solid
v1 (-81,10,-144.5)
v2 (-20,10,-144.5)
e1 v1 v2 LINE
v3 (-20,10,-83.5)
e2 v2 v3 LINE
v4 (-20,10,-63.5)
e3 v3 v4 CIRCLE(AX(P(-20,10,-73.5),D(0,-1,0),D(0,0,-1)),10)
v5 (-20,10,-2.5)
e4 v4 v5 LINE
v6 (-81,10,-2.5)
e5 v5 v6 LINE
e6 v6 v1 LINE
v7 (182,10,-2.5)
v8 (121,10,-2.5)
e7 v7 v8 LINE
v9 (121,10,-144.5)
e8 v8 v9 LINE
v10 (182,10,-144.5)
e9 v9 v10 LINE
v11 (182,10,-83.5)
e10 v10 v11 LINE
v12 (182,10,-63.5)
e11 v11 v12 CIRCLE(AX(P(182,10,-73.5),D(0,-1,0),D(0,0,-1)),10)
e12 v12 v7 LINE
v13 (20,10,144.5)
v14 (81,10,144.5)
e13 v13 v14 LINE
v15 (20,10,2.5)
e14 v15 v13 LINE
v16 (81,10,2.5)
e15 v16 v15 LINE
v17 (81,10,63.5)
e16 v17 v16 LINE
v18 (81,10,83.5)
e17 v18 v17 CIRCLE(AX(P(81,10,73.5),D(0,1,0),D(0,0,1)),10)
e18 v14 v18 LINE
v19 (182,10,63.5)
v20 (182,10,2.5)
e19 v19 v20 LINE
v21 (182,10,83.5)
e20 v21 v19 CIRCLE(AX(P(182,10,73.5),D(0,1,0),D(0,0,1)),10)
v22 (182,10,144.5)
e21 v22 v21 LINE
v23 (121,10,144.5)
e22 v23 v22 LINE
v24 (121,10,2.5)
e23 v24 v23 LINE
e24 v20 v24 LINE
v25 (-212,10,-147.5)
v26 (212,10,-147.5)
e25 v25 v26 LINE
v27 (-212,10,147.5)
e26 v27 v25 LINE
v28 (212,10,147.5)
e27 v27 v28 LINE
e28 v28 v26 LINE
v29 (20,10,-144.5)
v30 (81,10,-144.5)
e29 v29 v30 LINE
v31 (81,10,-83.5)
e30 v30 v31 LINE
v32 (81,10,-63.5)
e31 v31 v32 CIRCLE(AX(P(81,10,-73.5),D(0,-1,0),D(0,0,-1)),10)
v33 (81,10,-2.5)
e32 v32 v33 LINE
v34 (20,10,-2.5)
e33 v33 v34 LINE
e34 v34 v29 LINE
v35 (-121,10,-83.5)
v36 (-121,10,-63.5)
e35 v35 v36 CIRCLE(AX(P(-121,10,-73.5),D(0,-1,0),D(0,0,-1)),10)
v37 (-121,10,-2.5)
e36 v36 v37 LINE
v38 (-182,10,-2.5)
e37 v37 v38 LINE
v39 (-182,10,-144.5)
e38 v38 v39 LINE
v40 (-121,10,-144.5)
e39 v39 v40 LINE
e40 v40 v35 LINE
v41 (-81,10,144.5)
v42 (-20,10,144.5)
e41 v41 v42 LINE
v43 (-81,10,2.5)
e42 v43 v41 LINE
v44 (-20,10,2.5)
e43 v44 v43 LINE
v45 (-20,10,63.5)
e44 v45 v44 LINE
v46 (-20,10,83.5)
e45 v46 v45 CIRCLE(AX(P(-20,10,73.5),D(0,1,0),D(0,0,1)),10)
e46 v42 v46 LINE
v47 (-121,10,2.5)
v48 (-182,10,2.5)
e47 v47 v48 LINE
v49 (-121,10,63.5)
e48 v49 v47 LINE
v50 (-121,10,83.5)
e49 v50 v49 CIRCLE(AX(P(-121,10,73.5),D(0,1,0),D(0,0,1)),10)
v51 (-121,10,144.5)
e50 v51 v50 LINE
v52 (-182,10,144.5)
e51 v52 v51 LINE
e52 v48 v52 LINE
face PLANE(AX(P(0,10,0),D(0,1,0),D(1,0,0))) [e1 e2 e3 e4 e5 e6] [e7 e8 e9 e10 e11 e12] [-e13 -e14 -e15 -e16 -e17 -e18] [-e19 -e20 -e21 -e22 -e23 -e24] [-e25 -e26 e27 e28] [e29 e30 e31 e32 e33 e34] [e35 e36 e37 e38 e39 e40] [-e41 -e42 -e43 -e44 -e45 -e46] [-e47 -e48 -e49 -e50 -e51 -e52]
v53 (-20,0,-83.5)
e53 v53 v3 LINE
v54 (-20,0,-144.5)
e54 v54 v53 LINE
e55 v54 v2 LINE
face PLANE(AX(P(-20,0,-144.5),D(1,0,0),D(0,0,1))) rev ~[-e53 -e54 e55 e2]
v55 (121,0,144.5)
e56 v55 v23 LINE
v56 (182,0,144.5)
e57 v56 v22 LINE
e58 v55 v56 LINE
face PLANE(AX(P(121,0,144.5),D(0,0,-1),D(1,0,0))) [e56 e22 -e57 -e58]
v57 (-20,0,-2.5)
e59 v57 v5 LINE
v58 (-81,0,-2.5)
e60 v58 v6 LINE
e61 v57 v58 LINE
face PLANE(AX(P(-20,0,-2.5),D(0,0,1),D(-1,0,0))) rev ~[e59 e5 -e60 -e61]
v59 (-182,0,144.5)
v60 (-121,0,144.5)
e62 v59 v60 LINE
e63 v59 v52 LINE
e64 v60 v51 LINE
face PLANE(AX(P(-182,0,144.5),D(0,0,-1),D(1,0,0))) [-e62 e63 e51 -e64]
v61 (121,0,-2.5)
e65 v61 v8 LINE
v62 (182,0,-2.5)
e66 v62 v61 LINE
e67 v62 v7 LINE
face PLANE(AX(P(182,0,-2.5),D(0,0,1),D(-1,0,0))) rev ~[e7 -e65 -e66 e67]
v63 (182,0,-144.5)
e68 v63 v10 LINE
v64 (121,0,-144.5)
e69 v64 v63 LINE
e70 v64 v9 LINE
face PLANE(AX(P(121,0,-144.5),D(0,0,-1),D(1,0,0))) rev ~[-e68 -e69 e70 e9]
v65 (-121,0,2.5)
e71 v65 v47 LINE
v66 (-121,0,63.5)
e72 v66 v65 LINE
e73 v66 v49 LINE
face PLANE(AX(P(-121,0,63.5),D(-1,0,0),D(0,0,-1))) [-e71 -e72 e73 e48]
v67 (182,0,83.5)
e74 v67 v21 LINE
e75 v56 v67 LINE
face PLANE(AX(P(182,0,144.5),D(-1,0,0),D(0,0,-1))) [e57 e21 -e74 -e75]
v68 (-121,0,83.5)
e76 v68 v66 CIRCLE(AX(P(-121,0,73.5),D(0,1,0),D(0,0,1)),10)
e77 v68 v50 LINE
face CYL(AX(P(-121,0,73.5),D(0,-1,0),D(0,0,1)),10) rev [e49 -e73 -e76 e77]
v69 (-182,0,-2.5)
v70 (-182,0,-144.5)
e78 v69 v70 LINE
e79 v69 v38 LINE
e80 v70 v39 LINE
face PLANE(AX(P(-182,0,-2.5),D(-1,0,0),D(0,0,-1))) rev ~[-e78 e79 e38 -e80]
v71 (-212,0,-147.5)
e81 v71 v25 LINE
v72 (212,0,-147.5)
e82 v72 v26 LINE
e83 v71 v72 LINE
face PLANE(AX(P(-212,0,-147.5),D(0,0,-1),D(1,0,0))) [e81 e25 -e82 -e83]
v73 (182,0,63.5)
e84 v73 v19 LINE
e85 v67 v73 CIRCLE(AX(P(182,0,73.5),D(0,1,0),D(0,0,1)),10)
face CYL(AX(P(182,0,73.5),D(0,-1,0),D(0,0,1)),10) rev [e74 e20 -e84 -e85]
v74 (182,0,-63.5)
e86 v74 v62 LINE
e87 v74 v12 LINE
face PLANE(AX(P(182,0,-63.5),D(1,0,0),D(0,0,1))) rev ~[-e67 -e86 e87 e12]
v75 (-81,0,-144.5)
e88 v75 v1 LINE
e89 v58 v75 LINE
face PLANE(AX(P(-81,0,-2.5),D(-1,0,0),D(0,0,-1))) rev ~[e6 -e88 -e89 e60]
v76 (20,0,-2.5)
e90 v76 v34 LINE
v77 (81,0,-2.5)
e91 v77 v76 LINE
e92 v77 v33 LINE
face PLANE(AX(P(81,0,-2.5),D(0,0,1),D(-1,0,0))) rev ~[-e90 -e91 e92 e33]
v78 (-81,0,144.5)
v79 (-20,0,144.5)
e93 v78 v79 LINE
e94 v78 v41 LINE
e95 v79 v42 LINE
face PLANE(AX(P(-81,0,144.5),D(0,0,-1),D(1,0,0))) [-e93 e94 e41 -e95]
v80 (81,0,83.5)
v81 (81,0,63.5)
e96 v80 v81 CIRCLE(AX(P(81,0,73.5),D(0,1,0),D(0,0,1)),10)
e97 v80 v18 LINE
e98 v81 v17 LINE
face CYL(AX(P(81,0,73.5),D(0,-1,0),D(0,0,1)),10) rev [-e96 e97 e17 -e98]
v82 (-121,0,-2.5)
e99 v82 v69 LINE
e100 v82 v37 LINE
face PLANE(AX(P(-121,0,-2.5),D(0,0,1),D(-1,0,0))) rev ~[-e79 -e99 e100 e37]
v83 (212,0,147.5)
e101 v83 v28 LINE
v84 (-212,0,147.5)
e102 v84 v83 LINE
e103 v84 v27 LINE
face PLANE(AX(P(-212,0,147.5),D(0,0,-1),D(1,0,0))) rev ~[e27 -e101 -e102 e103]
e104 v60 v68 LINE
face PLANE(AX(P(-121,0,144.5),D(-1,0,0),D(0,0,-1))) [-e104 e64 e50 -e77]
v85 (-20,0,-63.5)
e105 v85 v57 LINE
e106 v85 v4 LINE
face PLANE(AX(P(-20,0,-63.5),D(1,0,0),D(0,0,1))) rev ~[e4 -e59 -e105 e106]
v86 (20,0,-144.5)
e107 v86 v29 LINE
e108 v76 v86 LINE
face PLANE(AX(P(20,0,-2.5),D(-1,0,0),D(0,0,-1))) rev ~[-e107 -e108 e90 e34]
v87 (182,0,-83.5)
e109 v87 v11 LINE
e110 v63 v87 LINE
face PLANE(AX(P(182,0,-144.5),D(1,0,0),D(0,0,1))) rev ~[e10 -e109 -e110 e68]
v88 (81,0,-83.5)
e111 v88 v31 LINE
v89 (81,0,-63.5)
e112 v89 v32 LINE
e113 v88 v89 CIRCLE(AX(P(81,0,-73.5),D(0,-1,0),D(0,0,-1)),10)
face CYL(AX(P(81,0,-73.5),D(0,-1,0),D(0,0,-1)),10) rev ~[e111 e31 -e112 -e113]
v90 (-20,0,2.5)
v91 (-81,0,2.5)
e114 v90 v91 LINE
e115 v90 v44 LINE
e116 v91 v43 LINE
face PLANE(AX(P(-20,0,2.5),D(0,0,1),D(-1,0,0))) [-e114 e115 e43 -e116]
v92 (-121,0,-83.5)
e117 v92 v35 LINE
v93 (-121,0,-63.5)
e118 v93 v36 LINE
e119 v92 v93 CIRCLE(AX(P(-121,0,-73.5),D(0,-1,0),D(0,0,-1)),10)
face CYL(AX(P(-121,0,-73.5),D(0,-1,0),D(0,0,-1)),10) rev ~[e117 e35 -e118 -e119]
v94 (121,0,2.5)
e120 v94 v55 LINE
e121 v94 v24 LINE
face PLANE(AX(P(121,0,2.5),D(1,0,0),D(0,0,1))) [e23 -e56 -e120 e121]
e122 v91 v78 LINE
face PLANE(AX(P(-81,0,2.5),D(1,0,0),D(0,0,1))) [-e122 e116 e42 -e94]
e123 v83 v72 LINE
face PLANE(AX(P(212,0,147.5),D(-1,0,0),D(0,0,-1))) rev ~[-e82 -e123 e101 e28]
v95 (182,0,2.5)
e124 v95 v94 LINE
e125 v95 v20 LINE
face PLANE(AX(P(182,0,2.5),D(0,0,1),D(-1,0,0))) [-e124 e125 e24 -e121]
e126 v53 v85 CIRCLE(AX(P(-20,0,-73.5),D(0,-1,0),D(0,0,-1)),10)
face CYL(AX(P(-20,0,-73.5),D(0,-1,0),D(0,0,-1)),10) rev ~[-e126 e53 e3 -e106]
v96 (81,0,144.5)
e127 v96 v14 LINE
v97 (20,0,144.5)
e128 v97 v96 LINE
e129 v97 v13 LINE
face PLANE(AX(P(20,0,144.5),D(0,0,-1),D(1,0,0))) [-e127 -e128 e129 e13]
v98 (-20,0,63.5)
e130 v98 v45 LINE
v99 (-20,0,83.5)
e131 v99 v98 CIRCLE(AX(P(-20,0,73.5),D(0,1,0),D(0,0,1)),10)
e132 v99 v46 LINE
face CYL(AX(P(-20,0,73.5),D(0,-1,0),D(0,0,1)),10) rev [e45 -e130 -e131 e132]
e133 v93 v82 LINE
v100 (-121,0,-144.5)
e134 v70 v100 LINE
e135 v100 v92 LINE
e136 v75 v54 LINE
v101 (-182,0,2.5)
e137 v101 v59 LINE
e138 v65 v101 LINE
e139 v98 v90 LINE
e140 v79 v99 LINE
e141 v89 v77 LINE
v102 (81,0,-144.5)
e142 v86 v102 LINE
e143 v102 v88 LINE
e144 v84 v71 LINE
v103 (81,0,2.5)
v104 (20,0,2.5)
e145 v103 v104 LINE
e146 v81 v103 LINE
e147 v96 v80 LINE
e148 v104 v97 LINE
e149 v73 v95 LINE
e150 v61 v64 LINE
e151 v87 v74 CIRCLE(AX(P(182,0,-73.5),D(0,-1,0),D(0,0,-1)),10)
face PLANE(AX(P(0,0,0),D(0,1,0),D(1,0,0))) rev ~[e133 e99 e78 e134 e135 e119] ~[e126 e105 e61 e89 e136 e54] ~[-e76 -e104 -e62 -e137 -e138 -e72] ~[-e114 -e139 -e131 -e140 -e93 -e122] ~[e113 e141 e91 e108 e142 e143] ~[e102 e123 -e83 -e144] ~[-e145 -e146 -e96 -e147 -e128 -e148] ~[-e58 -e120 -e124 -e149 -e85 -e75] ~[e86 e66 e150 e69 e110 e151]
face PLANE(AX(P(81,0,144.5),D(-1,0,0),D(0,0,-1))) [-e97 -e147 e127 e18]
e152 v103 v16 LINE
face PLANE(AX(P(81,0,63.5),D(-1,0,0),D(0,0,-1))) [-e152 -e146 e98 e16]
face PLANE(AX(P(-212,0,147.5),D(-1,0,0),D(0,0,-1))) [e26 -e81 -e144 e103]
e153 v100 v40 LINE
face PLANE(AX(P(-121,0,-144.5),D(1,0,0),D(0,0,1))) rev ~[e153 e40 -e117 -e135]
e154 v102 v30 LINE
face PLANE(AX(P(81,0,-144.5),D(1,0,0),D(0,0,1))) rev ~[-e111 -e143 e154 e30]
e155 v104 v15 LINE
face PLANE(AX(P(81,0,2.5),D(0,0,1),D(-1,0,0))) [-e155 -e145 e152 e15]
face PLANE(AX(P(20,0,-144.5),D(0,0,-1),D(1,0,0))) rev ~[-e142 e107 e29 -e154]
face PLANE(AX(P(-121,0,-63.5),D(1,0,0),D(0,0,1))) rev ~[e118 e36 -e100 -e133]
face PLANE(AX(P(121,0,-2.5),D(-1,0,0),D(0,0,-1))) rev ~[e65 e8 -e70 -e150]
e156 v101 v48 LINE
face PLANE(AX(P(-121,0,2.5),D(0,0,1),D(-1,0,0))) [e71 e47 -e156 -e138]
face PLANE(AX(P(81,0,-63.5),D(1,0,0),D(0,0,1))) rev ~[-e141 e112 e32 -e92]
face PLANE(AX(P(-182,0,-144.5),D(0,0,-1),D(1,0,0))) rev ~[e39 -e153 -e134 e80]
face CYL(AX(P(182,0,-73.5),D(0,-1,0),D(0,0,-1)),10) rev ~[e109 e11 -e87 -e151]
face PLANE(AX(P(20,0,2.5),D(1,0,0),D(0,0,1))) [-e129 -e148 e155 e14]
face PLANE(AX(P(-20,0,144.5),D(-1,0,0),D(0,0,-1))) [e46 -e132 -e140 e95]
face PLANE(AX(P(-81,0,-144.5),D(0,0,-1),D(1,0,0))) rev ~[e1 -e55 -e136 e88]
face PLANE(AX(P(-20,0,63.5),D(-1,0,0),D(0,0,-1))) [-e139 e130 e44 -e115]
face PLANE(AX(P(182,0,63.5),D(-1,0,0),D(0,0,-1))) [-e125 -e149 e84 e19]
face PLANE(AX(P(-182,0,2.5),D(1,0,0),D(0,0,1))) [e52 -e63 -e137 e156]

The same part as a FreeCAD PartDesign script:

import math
import FreeCAD as App
import Part
import Sketcher

doc = App.newDocument("Part")
body = doc.addObject("PartDesign::Body", "Body")

# Sketch on XZ plane
sketch1 = body.newObject("Sketcher::SketchObject", "Sketch")
sketch1.AttachmentSupport = (doc.getObject("XZ_Plane"), [""])
sketch1.MapMode = "FlatFace"
sketch1.addGeometry([
    Part.LineSegment(App.Vector(-212, -147.5, 0), App.Vector(-212, 147.5, 0)),  # 0
    Part.LineSegment(App.Vector(-212, 147.5, 0), App.Vector(212, 147.5, 0)),  # 1
    Part.LineSegment(App.Vector(212, 147.5, 0), App.Vector(212, -147.5, 0)),  # 2
    Part.LineSegment(App.Vector(212, -147.5, 0), App.Vector(-212, -147.5, 0)),  # 3
    Part.LineSegment(App.Vector(-121, 83.5, 0), App.Vector(-121, 144.5, 0)),  # 4
    Part.LineSegment(App.Vector(-121, 144.5, 0), App.Vector(-182, 144.5, 0)),  # 5
    Part.LineSegment(App.Vector(-182, 144.5, 0), App.Vector(-182, 2.5, 0)),  # 6
    Part.LineSegment(App.Vector(-182, 2.5, 0), App.Vector(-121, 2.5, 0)),  # 7
    Part.LineSegment(App.Vector(-121, 2.5, 0), App.Vector(-121, 63.5, 0)),  # 8
    Part.ArcOfCircle(Part.Circle(App.Vector(-121, 73.5, 0), App.Vector(0, 0, 1), 10), math.radians(-90), math.radians(90)),  # 9
    Part.LineSegment(App.Vector(-20, 2.5, 0), App.Vector(-20, 63.5, 0)),  # 10
    Part.ArcOfCircle(Part.Circle(App.Vector(-20, 73.5, 0), App.Vector(0, 0, 1), 10), math.radians(-90), math.radians(90)),  # 11
    Part.LineSegment(App.Vector(-20, 83.5, 0), App.Vector(-20, 144.5, 0)),  # 12
    Part.LineSegment(App.Vector(-20, 144.5, 0), App.Vector(-81, 144.5, 0)),  # 13
    Part.LineSegment(App.Vector(-81, 144.5, 0), App.Vector(-81, 2.5, 0)),  # 14
    Part.LineSegment(App.Vector(-81, 2.5, 0), App.Vector(-20, 2.5, 0)),  # 15
    Part.LineSegment(App.Vector(81, 2.5, 0), App.Vector(81, 63.5, 0)),  # 16
    Part.ArcOfCircle(Part.Circle(App.Vector(81, 73.5, 0), App.Vector(0, 0, 1), 10), math.radians(-90), math.radians(90)),  # 17
    Part.LineSegment(App.Vector(81, 83.5, 0), App.Vector(81, 144.5, 0)),  # 18
    Part.LineSegment(App.Vector(81, 144.5, 0), App.Vector(20, 144.5, 0)),  # 19
    Part.LineSegment(App.Vector(20, 144.5, 0), App.Vector(20, 2.5, 0)),  # 20
    Part.LineSegment(App.Vector(20, 2.5, 0), App.Vector(81, 2.5, 0)),  # 21
    Part.LineSegment(App.Vector(182, 2.5, 0), App.Vector(182, 63.5, 0)),  # 22
    Part.ArcOfCircle(Part.Circle(App.Vector(182, 73.5, 0), App.Vector(0, 0, 1), 10), math.radians(-90), math.radians(90)),  # 23
    Part.LineSegment(App.Vector(182, 83.5, 0), App.Vector(182, 144.5, 0)),  # 24
    Part.LineSegment(App.Vector(182, 144.5, 0), App.Vector(121, 144.5, 0)),  # 25
    Part.LineSegment(App.Vector(121, 144.5, 0), App.Vector(121, 2.5, 0)),  # 26
    Part.LineSegment(App.Vector(121, 2.5, 0), App.Vector(182, 2.5, 0)),  # 27
    Part.LineSegment(App.Vector(-182, -2.5, 0), App.Vector(-182, -144.5, 0)),  # 28
    Part.LineSegment(App.Vector(-182, -144.5, 0), App.Vector(-121, -144.5, 0)),  # 29
    Part.LineSegment(App.Vector(-121, -144.5, 0), App.Vector(-121, -83.5, 0)),  # 30
    Part.ArcOfCircle(Part.Circle(App.Vector(-121, -73.5, 0), App.Vector(0, 0, 1), 10), math.radians(-90), math.radians(90)),  # 31
    Part.LineSegment(App.Vector(-121, -63.5, 0), App.Vector(-121, -2.5, 0)),  # 32
    Part.LineSegment(App.Vector(-121, -2.5, 0), App.Vector(-182, -2.5, 0)),  # 33
    Part.ArcOfCircle(Part.Circle(App.Vector(-20, -73.5, 0), App.Vector(0, 0, 1), 10), math.radians(-90), math.radians(90)),  # 34
    Part.LineSegment(App.Vector(-20, -63.5, 0), App.Vector(-20, -2.5, 0)),  # 35
    Part.LineSegment(App.Vector(-20, -2.5, 0), App.Vector(-81, -2.5, 0)),  # 36
    Part.LineSegment(App.Vector(-81, -2.5, 0), App.Vector(-81, -144.5, 0)),  # 37
    Part.LineSegment(App.Vector(-81, -144.5, 0), App.Vector(-20, -144.5, 0)),  # 38
    Part.LineSegment(App.Vector(-20, -144.5, 0), App.Vector(-20, -83.5, 0)),  # 39
    Part.ArcOfCircle(Part.Circle(App.Vector(81, -73.5, 0), App.Vector(0, 0, 1), 10), math.radians(-90), math.radians(90)),  # 40
    Part.LineSegment(App.Vector(81, -63.5, 0), App.Vector(81, -2.5, 0)),  # 41
    Part.LineSegment(App.Vector(81, -2.5, 0), App.Vector(20, -2.5, 0)),  # 42
    Part.LineSegment(App.Vector(20, -2.5, 0), App.Vector(20, -144.5, 0)),  # 43
    Part.LineSegment(App.Vector(20, -144.5, 0), App.Vector(81, -144.5, 0)),  # 44
    Part.LineSegment(App.Vector(81, -144.5, 0), App.Vector(81, -83.5, 0)),  # 45
    Part.ArcOfCircle(Part.Circle(App.Vector(182, -73.5, 0), App.Vector(0, 0, 1), 10), math.radians(-90), math.radians(90)),  # 46
    Part.LineSegment(App.Vector(182, -63.5, 0), App.Vector(182, -2.5, 0)),  # 47
    Part.LineSegment(App.Vector(182, -2.5, 0), App.Vector(121, -2.5, 0)),  # 48
    Part.LineSegment(App.Vector(121, -2.5, 0), App.Vector(121, -144.5, 0)),  # 49
    Part.LineSegment(App.Vector(121, -144.5, 0), App.Vector(182, -144.5, 0)),  # 50
    Part.LineSegment(App.Vector(182, -144.5, 0), App.Vector(182, -83.5, 0)),  # 51
], False)
sketch1.addConstraint([
    Sketcher.Constraint("Coincident", 0, 2, 1, 1),
    Sketcher.Constraint("Coincident", 1, 2, 2, 1),
    Sketcher.Constraint("Coincident", 2, 2, 3, 1),
    Sketcher.Constraint("Coincident", 3, 2, 0, 1),
    Sketcher.Constraint("Coincident", 4, 2, 5, 1),
    Sketcher.Constraint("Coincident", 5, 2, 6, 1),
    Sketcher.Constraint("Coincident", 6, 2, 7, 1),
    Sketcher.Constraint("Coincident", 7, 2, 8, 1),
    Sketcher.Constraint("Coincident", 8, 2, 9, 1),
    Sketcher.Constraint("Coincident", 9, 2, 4, 1),
    Sketcher.Constraint("Coincident", 10, 2, 11, 1),
    Sketcher.Constraint("Coincident", 11, 2, 12, 1),
    Sketcher.Constraint("Coincident", 12, 2, 13, 1),
    Sketcher.Constraint("Coincident", 13, 2, 14, 1),
    Sketcher.Constraint("Coincident", 14, 2, 15, 1),
    Sketcher.Constraint("Coincident", 15, 2, 10, 1),
    Sketcher.Constraint("Coincident", 16, 2, 17, 1),
    Sketcher.Constraint("Coincident", 17, 2, 18, 1),
    Sketcher.Constraint("Coincident", 18, 2, 19, 1),
    Sketcher.Constraint("Coincident", 19, 2, 20, 1),
    Sketcher.Constraint("Coincident", 20, 2, 21, 1),
    Sketcher.Constraint("Coincident", 21, 2, 16, 1),
    Sketcher.Constraint("Coincident", 22, 2, 23, 1),
    Sketcher.Constraint("Coincident", 23, 2, 24, 1),
    Sketcher.Constraint("Coincident", 24, 2, 25, 1),
    Sketcher.Constraint("Coincident", 25, 2, 26, 1),
    Sketcher.Constraint("Coincident", 26, 2, 27, 1),
    Sketcher.Constraint("Coincident", 27, 2, 22, 1),
    Sketcher.Constraint("Coincident", 28, 2, 29, 1),
    Sketcher.Constraint("Coincident", 29, 2, 30, 1),
    Sketcher.Constraint("Coincident", 30, 2, 31, 1),
    Sketcher.Constraint("Coincident", 31, 2, 32, 1),
    Sketcher.Constraint("Coincident", 32, 2, 33, 1),
    Sketcher.Constraint("Coincident", 33, 2, 28, 1),
    Sketcher.Constraint("Coincident", 34, 2, 35, 1),
    Sketcher.Constraint("Coincident", 35, 2, 36, 1),
    Sketcher.Constraint("Coincident", 36, 2, 37, 1),
    Sketcher.Constraint("Coincident", 37, 2, 38, 1),
    Sketcher.Constraint("Coincident", 38, 2, 39, 1),
    Sketcher.Constraint("Coincident", 39, 2, 34, 1),
    Sketcher.Constraint("Coincident", 40, 2, 41, 1),
    Sketcher.Constraint("Coincident", 41, 2, 42, 1),
    Sketcher.Constraint("Coincident", 42, 2, 43, 1),
    Sketcher.Constraint("Coincident", 43, 2, 44, 1),
    Sketcher.Constraint("Coincident", 44, 2, 45, 1),
    Sketcher.Constraint("Coincident", 45, 2, 40, 1),
    Sketcher.Constraint("Coincident", 46, 2, 47, 1),
    Sketcher.Constraint("Coincident", 47, 2, 48, 1),
    Sketcher.Constraint("Coincident", 48, 2, 49, 1),
    Sketcher.Constraint("Coincident", 49, 2, 50, 1),
    Sketcher.Constraint("Coincident", 50, 2, 51, 1),
    Sketcher.Constraint("Coincident", 51, 2, 46, 1),
    Sketcher.Constraint("Vertical", 0),
    Sketcher.Constraint("Horizontal", 1),
    Sketcher.Constraint("Vertical", 2),
    Sketcher.Constraint("Horizontal", 3),
    Sketcher.Constraint("Vertical", 4),
    Sketcher.Constraint("Horizontal", 5),
    Sketcher.Constraint("Vertical", 6),
    Sketcher.Constraint("Horizontal", 7),
    Sketcher.Constraint("Vertical", 8),
    Sketcher.Constraint("Vertical", 10),
    Sketcher.Constraint("Vertical", 12),
    Sketcher.Constraint("Horizontal", 13),
    Sketcher.Constraint("Vertical", 14),
    Sketcher.Constraint("Horizontal", 15),
    Sketcher.Constraint("Vertical", 16),
    Sketcher.Constraint("Vertical", 18),
    Sketcher.Constraint("Horizontal", 19),
    Sketcher.Constraint("Vertical", 20),
    Sketcher.Constraint("Horizontal", 21),
    Sketcher.Constraint("Vertical", 22),
    Sketcher.Constraint("Vertical", 24),
    Sketcher.Constraint("Horizontal", 25),
    Sketcher.Constraint("Vertical", 26),
    Sketcher.Constraint("Horizontal", 27),
    Sketcher.Constraint("Vertical", 28),
    Sketcher.Constraint("Horizontal", 29),
    Sketcher.Constraint("Vertical", 30),
    Sketcher.Constraint("Vertical", 32),
    Sketcher.Constraint("Horizontal", 33),
    Sketcher.Constraint("Vertical", 35),
    Sketcher.Constraint("Horizontal", 36),
    Sketcher.Constraint("Vertical", 37),
    Sketcher.Constraint("Horizontal", 38),
    Sketcher.Constraint("Vertical", 39),
    Sketcher.Constraint("Vertical", 41),
    Sketcher.Constraint("Horizontal", 42),
    Sketcher.Constraint("Vertical", 43),
    Sketcher.Constraint("Horizontal", 44),
    Sketcher.Constraint("Vertical", 45),
    Sketcher.Constraint("Vertical", 47),
    Sketcher.Constraint("Horizontal", 48),
    Sketcher.Constraint("Vertical", 49),
    Sketcher.Constraint("Horizontal", 50),
    Sketcher.Constraint("Vertical", 51),
    Sketcher.Constraint("Equal", 9, 11),
    Sketcher.Constraint("Equal", 11, 17),
    Sketcher.Constraint("Equal", 17, 23),
    Sketcher.Constraint("Equal", 23, 31),
    Sketcher.Constraint("Equal", 31, 34),
    Sketcher.Constraint("Equal", 34, 40),
    Sketcher.Constraint("Equal", 40, 46),
    Sketcher.Constraint("Symmetric", 0, 2, 2, 2, -1, 1),
    Sketcher.Constraint("Symmetric", 24, 2, 28, 2, -1, 1),
    Sketcher.Constraint("Symmetric", 26, 2, 32, 2, -1, 1),
    Sketcher.Constraint("Symmetric", 20, 2, 35, 2, -1, 1),
    Sketcher.Constraint("Symmetric", 18, 2, 37, 2, -1, 1),
    Sketcher.Constraint("Symmetric", 14, 2, 41, 2, -1, 1),
    Sketcher.Constraint("Symmetric", 12, 2, 43, 2, -1, 1),
    Sketcher.Constraint("Symmetric", 6, 2, 47, 2, -1, 1),
    Sketcher.Constraint("Symmetric", 4, 2, 49, 2, -1, 1),
    Sketcher.Constraint("Symmetric", 13, 2, 18, 2, -2),
    Sketcher.Constraint("Symmetric", 15, 2, 20, 2, -2),
    Sketcher.Constraint("Symmetric", 5, 2, 24, 2, -2),
    Sketcher.Constraint("Symmetric", 7, 2, 26, 2, -2),
    Sketcher.Constraint("Symmetric", 9, 3, 31, 3, -1),
    Sketcher.Constraint("Symmetric", 11, 3, 34, 3, -1),
    Sketcher.Constraint("Symmetric", 17, 3, 40, 3, -1),
    Sketcher.Constraint("Symmetric", 23, 3, 46, 3, -1),
    Sketcher.Constraint("Horizontal", 9, 3, 11, 3),
    Sketcher.Constraint("Horizontal", 11, 3, 17, 3),
    Sketcher.Constraint("Horizontal", 17, 3, 23, 3),
    Sketcher.Constraint("Horizontal", 5, 2, 12, 2),
    Sketcher.Constraint("Horizontal", 7, 2, 14, 2),
    Sketcher.Constraint("Vertical", 31, 3, 4, 2),
    Sketcher.Constraint("Vertical", 4, 2, 7, 2),
    Sketcher.Constraint("Vertical", 34, 3, 10, 2),
    Sketcher.Constraint("Vertical", 10, 2, 11, 2),
    Sketcher.Constraint("Vertical", 40, 3, 16, 2),
    Sketcher.Constraint("Vertical", 16, 2, 17, 2),
    Sketcher.Constraint("Vertical", 46, 3, 22, 2),
    Sketcher.Constraint("Vertical", 22, 2, 23, 2),
    Sketcher.Constraint("Vertical", 9, 2, 29, 2),
    Sketcher.Constraint("Vertical", 35, 2, 38, 2),
    Sketcher.Constraint("Vertical", 41, 2, 44, 2),
    Sketcher.Constraint("Vertical", 47, 2, 50, 2),
    Sketcher.Constraint("Equal", 7, 13),
    Sketcher.Constraint("Equal", 50, 4),
    Sketcher.Constraint("Equal", 4, 8),
    Sketcher.Constraint("Radius", 9, 10.0),
    Sketcher.Constraint("DistanceX", 1, 1, 1, 2, 424.0),
    Sketcher.Constraint("DistanceX", 5, 2, 5, 1, 61.0),
    Sketcher.Constraint("DistanceY", 0, 1, 0, 2, 295.0),
    Sketcher.Constraint("DistanceX", 9, 3, -1, 1, 121.0),
    Sketcher.Constraint("DistanceX", 11, 3, -1, 1, 20.0),
    Sketcher.Constraint("DistanceY", 31, 3, 9, 3, 147.0),
])
pad1 = body.newObject("PartDesign::Pad", "Pad")
pad1.Profile = sketch1
pad1.Length = 10
pad1.Reversed = True

doc.recompute()
